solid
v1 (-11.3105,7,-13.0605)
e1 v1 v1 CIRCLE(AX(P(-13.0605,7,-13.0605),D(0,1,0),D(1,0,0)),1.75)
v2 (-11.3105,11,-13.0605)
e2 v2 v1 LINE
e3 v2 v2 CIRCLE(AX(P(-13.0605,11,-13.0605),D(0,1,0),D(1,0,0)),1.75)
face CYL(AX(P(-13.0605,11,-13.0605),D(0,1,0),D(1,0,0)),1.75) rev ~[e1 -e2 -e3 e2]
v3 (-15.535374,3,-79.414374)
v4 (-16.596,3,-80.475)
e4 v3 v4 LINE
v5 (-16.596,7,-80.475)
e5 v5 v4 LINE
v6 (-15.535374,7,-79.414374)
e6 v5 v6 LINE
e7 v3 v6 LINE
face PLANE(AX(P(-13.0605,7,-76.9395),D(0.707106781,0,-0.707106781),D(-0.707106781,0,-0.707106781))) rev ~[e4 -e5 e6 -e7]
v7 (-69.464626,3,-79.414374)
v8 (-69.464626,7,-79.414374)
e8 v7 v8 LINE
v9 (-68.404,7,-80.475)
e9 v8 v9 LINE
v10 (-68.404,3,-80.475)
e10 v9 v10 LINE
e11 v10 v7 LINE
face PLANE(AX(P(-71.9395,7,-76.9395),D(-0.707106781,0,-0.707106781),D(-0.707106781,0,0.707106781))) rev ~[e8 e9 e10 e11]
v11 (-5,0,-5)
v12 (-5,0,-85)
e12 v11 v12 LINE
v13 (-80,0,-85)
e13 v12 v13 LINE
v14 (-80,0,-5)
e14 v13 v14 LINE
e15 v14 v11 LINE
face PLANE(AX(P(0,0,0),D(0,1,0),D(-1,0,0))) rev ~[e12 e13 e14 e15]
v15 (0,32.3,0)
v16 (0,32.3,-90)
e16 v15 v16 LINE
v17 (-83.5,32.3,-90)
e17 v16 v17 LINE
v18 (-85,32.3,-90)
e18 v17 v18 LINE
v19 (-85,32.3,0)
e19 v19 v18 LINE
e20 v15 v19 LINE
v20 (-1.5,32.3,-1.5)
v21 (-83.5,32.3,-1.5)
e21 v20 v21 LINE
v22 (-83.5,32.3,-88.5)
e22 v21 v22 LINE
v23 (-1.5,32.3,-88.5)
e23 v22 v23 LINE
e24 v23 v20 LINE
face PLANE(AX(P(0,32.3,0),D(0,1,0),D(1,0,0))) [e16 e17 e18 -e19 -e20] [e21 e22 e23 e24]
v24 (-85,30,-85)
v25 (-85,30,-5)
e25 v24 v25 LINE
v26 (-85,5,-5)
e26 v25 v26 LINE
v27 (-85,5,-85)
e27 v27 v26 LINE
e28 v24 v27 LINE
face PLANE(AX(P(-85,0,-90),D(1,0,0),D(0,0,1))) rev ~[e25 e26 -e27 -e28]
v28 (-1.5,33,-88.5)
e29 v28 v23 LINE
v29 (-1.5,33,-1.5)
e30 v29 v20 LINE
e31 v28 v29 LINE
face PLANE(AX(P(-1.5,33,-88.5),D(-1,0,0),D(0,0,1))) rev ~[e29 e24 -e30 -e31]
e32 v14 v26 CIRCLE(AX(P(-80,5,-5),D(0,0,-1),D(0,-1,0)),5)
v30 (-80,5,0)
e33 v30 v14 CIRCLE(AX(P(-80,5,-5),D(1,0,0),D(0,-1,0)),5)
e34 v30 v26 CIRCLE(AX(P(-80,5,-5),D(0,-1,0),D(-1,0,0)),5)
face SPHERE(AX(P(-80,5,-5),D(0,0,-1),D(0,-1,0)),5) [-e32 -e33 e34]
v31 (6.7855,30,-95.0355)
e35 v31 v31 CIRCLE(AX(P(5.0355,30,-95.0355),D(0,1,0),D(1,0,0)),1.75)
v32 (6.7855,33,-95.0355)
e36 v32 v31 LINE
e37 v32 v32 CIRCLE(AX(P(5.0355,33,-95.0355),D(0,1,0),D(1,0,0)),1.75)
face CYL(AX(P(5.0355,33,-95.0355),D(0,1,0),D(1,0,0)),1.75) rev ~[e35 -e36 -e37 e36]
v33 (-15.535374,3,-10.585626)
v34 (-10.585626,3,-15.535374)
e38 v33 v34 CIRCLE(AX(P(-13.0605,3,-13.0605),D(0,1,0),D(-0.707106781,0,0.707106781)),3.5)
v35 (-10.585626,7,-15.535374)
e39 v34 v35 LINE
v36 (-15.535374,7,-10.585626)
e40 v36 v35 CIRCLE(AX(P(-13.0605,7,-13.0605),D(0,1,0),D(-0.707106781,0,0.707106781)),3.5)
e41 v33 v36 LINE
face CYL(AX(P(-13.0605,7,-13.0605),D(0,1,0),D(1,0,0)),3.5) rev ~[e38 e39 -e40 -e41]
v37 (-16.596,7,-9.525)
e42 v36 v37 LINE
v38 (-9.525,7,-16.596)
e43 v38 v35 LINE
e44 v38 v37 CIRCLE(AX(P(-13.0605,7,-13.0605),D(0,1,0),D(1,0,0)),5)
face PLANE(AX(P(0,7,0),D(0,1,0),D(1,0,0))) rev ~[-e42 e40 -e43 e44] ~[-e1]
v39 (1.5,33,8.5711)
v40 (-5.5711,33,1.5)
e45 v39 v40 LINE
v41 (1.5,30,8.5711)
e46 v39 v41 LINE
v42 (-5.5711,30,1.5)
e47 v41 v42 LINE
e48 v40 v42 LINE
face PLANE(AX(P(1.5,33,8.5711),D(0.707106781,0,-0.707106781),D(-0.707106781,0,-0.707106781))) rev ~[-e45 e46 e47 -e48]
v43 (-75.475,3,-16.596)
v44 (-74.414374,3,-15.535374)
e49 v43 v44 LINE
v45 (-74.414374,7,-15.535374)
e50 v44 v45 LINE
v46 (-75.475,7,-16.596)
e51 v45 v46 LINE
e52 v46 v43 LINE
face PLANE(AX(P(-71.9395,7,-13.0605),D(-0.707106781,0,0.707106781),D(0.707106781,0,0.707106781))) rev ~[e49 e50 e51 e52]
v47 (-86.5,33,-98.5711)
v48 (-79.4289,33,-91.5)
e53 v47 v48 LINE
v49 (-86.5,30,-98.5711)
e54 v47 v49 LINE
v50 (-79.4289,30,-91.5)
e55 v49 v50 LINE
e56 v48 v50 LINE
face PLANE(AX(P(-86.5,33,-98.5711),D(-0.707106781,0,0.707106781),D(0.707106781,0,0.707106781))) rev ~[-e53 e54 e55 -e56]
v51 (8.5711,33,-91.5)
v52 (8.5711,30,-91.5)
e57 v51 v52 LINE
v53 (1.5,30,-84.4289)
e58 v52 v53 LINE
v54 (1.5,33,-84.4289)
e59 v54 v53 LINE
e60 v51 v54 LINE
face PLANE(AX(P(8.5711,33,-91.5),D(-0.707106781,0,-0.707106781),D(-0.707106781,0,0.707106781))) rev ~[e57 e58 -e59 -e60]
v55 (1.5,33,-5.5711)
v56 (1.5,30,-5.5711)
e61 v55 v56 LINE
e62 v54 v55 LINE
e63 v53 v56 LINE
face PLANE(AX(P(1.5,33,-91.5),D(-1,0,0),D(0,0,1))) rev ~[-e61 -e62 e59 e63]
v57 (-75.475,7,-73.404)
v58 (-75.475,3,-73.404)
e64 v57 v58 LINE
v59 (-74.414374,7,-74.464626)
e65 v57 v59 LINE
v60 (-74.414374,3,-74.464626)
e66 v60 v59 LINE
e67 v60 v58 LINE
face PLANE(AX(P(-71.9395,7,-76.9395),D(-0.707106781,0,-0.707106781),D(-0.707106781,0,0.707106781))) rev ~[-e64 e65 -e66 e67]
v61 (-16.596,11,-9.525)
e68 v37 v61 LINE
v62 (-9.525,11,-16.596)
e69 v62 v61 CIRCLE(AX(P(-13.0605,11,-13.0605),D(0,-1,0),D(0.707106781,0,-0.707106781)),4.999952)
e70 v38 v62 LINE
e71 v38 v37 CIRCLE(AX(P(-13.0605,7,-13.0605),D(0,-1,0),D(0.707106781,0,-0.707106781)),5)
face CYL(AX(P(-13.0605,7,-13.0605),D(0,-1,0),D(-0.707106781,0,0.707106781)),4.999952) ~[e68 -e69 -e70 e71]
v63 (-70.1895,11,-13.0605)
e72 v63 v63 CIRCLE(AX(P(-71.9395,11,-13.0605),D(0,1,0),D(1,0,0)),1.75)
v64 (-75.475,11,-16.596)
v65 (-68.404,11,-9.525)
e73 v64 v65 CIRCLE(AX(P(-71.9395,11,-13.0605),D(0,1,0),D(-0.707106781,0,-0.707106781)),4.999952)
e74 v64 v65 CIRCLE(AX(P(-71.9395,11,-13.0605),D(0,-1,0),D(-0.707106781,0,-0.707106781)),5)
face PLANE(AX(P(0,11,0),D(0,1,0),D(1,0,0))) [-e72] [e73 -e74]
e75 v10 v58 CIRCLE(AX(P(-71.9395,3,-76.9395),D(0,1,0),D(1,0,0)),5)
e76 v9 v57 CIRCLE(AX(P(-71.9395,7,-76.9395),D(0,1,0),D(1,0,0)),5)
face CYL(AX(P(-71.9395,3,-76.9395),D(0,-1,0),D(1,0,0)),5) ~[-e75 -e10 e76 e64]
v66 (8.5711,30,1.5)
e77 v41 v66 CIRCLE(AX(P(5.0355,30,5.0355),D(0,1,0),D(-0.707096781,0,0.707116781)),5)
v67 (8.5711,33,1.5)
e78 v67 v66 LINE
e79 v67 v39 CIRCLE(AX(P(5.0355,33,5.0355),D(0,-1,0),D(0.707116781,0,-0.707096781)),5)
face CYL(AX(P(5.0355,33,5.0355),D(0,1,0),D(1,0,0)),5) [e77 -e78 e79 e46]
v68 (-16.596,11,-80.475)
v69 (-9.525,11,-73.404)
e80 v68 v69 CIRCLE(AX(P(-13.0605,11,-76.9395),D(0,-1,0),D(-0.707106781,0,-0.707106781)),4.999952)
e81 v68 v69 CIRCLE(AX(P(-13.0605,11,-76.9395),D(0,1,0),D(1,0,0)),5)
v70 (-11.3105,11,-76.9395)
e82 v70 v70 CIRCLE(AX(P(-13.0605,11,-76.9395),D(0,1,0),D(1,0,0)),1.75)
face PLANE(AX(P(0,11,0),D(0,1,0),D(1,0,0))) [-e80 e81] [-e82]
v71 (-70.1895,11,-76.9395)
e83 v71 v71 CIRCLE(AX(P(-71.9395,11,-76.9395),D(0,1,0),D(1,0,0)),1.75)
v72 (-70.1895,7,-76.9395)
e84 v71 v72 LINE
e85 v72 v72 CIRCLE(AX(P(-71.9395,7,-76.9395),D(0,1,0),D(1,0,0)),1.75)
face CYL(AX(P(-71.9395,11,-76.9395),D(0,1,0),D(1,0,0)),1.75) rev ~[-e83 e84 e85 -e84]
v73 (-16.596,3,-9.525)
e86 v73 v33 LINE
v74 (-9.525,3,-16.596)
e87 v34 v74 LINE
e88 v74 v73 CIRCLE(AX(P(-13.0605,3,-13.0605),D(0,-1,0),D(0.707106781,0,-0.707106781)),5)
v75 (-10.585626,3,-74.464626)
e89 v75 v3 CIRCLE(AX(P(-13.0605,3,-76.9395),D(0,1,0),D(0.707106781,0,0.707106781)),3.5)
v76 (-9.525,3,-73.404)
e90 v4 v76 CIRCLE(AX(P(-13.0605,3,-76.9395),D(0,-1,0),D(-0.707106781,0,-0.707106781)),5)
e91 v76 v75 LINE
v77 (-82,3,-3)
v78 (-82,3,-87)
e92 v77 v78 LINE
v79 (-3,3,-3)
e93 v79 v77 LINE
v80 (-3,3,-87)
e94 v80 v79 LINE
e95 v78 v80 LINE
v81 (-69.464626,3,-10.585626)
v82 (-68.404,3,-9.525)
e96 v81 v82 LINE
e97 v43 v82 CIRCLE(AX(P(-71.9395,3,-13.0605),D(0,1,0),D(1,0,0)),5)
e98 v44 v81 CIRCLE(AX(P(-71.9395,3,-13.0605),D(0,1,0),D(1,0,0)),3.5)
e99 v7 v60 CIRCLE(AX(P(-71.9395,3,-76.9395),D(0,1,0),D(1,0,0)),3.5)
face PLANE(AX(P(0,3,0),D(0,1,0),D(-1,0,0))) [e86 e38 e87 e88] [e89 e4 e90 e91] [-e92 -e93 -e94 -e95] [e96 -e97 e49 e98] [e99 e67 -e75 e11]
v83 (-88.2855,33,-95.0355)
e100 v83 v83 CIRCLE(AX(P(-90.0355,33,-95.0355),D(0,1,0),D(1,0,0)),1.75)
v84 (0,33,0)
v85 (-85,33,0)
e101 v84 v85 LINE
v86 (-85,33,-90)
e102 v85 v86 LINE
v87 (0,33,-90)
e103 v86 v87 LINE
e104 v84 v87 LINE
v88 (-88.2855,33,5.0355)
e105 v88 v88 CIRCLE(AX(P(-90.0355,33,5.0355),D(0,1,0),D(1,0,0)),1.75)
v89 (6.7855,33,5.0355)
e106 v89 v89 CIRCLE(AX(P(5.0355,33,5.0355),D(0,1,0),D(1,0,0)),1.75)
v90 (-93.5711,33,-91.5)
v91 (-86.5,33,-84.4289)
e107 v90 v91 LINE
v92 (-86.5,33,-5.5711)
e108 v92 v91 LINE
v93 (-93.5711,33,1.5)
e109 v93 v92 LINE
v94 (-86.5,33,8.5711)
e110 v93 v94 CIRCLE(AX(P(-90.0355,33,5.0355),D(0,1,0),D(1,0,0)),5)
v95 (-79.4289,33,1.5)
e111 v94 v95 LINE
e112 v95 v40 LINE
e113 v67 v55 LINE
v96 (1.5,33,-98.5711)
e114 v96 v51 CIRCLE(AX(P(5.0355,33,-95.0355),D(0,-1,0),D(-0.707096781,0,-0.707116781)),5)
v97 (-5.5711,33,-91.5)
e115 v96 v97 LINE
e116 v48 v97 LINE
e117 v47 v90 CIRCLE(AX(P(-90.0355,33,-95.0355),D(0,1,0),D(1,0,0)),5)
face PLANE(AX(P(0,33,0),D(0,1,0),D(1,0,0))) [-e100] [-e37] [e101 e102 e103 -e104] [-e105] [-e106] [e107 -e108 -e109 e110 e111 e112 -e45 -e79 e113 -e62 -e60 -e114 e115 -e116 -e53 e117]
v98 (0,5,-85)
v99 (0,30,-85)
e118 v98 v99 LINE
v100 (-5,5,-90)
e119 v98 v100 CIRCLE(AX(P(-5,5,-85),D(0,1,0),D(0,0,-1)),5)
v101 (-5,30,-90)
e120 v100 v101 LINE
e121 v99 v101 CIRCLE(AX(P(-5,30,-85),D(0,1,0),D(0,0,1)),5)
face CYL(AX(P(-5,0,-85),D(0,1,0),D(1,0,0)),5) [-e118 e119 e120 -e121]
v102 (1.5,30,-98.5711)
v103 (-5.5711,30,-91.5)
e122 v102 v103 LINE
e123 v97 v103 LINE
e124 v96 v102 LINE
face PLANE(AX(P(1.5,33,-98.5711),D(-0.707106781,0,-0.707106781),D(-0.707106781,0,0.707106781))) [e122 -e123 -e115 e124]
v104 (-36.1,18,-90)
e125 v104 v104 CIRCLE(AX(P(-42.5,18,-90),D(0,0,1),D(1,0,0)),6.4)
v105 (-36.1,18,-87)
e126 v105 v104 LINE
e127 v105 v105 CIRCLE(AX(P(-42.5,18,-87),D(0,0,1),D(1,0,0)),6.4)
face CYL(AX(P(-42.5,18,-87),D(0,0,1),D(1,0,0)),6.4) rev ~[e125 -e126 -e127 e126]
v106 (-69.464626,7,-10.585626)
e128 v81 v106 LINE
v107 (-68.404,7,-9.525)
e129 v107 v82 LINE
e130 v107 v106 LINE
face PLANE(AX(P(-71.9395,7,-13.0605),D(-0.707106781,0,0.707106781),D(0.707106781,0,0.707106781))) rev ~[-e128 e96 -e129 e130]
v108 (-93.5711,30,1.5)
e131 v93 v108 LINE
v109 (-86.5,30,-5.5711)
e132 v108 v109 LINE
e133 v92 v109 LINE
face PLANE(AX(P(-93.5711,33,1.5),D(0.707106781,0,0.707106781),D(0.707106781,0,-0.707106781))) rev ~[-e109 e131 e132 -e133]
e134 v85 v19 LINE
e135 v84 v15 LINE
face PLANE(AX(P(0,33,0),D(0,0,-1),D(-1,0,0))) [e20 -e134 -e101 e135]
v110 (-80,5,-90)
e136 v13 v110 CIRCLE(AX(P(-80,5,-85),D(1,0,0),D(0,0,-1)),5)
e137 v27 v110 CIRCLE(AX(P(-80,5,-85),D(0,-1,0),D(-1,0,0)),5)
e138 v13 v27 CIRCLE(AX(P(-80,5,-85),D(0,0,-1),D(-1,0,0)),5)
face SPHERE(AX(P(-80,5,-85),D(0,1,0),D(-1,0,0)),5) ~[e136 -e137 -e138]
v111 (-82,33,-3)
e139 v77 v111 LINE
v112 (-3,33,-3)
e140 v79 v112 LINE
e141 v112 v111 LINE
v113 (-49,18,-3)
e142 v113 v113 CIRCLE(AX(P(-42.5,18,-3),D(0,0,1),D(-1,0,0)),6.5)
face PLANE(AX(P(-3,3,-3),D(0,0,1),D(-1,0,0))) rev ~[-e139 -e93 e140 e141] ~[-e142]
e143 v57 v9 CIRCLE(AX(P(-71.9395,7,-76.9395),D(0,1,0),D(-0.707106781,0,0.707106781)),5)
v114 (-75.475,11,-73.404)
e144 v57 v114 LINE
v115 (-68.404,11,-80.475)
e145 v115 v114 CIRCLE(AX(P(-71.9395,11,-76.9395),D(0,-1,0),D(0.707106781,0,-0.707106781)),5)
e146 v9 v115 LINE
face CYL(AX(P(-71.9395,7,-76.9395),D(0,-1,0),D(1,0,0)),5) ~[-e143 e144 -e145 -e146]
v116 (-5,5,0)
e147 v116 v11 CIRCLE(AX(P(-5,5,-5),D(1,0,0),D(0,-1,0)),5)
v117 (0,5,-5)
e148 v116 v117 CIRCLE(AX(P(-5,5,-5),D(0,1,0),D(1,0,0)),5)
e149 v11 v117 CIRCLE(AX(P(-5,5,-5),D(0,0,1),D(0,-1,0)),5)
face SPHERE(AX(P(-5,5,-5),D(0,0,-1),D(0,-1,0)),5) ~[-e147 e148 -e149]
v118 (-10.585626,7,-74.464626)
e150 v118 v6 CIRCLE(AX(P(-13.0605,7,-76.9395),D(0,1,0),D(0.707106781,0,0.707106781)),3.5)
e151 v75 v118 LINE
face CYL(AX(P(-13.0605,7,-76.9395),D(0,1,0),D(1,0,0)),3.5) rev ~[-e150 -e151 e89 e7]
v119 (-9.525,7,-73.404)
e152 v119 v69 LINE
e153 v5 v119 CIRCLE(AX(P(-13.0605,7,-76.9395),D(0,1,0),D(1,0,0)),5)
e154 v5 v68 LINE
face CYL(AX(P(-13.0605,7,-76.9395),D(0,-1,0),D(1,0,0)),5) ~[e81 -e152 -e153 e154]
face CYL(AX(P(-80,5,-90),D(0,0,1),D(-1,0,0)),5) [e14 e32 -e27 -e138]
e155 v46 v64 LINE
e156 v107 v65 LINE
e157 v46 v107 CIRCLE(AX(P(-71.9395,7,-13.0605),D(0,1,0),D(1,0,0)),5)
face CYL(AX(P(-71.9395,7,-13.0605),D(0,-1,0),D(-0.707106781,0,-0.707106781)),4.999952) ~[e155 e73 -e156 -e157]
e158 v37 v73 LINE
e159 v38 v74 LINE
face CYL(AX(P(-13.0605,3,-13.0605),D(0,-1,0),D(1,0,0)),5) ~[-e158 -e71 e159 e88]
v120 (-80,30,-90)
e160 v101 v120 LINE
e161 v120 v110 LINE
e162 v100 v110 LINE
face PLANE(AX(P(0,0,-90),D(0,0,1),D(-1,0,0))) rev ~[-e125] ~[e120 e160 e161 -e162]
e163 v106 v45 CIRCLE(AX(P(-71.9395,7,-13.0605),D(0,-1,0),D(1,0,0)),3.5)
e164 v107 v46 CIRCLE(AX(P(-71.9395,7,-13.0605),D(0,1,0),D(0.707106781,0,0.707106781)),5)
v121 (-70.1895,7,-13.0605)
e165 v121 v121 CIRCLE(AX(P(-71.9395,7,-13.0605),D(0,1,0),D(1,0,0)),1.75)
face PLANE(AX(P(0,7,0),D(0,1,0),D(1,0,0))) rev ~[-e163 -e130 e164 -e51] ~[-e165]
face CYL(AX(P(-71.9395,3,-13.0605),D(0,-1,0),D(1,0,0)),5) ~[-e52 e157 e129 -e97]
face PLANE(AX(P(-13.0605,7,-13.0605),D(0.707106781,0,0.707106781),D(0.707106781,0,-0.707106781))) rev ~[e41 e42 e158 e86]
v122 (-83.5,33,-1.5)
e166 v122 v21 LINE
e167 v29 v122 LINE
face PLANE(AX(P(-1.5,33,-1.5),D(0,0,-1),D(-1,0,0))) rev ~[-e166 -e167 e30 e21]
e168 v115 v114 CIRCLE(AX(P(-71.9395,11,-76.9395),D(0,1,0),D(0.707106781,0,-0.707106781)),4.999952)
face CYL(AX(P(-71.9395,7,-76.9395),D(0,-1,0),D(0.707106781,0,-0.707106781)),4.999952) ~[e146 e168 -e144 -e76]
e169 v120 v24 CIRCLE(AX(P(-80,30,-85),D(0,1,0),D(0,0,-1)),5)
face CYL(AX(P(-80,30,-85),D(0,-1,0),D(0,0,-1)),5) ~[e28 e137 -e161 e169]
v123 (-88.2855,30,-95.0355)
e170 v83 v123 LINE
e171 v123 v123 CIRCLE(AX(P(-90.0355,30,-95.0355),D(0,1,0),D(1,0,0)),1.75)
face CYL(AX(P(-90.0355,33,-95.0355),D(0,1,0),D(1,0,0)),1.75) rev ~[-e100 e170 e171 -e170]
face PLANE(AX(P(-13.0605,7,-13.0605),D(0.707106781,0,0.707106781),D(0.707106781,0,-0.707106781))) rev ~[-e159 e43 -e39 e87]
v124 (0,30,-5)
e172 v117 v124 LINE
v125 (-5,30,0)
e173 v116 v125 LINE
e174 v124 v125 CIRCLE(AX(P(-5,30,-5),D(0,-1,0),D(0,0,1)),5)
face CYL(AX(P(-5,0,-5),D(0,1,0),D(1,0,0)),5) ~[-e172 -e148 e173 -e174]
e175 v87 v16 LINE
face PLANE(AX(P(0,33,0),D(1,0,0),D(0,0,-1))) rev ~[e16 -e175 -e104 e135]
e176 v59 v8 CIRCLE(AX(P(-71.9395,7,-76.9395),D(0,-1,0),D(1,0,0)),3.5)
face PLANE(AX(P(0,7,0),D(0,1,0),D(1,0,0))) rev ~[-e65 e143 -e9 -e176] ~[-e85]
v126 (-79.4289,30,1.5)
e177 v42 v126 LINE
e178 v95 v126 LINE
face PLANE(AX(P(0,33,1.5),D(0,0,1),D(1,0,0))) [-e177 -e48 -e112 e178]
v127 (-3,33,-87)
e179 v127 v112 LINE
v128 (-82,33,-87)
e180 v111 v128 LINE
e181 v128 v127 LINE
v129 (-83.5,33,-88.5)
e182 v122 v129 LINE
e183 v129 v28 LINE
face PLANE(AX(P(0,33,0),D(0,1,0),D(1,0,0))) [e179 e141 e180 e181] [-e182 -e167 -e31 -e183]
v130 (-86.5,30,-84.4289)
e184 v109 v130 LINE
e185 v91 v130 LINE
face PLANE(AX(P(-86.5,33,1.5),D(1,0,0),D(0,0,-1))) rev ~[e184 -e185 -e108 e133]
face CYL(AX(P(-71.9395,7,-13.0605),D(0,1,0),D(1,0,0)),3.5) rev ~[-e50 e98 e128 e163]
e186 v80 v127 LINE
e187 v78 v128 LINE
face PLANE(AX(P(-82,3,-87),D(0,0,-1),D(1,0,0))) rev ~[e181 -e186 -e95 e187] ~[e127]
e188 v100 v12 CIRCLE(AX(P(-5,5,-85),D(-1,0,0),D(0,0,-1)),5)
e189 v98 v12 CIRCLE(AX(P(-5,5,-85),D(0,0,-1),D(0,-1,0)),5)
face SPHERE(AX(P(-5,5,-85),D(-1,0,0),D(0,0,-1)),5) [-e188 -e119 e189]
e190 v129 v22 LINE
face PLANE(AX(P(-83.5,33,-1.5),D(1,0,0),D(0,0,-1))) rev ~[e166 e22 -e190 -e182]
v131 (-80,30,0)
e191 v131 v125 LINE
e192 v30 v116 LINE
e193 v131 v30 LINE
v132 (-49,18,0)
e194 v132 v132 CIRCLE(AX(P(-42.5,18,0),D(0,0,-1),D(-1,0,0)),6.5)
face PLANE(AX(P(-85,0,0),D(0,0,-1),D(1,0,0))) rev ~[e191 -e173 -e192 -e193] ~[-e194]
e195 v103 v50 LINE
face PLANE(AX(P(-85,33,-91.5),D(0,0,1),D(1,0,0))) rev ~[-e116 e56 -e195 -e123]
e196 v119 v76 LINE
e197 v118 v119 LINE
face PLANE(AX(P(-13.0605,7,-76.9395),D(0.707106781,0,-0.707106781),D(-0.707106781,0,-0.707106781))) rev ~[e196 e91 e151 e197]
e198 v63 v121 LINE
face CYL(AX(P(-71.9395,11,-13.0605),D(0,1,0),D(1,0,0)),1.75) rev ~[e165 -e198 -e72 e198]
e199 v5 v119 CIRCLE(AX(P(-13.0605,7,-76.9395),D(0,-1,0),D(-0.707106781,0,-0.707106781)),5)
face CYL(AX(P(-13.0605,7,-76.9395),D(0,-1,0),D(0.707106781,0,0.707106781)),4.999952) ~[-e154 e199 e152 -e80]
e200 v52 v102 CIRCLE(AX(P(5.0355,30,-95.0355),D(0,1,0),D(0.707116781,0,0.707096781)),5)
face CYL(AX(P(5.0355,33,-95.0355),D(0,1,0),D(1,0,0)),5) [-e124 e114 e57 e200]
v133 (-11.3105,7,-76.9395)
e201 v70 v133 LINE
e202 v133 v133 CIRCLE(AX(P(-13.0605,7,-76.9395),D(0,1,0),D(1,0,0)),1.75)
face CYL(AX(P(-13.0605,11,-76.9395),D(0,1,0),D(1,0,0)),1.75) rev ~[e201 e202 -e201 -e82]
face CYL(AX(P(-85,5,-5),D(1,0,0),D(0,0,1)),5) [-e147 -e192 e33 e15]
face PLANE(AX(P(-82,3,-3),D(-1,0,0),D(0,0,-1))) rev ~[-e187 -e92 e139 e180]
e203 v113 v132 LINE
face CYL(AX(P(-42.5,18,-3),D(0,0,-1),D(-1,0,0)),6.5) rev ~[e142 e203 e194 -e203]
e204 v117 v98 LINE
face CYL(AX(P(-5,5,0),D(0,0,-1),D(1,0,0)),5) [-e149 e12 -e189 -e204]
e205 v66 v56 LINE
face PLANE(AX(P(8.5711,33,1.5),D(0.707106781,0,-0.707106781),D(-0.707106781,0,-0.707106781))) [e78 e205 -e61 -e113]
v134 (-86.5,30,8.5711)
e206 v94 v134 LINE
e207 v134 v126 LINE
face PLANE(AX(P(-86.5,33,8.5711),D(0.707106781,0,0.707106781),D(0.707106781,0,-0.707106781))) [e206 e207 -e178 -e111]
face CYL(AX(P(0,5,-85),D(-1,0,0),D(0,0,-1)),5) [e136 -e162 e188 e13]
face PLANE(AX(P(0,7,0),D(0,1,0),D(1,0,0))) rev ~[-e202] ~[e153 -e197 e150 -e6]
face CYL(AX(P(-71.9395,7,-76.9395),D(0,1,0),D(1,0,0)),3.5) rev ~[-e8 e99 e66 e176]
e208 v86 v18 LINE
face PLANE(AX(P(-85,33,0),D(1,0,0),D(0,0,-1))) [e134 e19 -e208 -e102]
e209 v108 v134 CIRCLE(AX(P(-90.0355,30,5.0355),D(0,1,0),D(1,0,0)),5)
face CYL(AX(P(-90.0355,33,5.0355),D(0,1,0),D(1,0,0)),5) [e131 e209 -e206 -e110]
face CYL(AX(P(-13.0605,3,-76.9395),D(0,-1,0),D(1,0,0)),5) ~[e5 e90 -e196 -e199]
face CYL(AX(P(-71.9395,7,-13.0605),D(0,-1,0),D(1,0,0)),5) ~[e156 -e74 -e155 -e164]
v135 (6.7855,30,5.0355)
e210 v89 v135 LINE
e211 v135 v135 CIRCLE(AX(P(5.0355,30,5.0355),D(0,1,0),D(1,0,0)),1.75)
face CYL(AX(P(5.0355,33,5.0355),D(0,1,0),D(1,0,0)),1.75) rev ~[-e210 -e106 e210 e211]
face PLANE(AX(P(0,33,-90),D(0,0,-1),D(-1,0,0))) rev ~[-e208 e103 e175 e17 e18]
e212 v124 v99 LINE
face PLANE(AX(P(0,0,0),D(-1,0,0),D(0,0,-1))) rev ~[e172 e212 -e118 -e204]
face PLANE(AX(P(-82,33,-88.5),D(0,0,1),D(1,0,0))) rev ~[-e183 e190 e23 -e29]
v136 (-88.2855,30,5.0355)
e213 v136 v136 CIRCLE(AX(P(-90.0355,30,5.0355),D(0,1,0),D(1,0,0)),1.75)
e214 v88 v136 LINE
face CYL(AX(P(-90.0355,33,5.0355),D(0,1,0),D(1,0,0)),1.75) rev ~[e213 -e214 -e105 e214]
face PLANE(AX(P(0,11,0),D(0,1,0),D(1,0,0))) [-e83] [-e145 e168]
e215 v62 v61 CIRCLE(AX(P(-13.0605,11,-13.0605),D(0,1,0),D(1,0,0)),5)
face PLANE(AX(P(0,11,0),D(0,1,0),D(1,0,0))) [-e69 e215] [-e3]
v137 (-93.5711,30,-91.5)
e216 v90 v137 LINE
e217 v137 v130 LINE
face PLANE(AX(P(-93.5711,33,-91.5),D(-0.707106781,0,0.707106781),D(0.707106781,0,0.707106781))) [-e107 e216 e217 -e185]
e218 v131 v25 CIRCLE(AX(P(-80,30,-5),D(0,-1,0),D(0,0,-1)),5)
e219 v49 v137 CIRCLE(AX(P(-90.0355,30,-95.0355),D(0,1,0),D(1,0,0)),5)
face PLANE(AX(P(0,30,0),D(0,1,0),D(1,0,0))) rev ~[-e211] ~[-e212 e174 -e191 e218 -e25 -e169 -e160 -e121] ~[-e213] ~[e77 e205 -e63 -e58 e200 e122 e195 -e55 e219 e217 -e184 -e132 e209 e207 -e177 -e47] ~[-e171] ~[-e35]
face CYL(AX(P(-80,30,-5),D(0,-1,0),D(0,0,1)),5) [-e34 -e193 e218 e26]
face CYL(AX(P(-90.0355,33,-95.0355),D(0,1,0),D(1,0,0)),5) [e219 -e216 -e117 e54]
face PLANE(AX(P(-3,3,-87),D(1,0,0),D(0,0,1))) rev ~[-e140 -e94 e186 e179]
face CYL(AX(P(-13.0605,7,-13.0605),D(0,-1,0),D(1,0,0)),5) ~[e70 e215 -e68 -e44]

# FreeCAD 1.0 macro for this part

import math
import FreeCAD as App
import Part
import Sketcher


def edges_at(feature, points):
    """Names of the edges that pass closest to the given points."""
    edges = feature.Shape.Edges
    near = lambda p: min(range(len(edges)), key=lambda i: edges[i].distToShape(Part.Vertex(*p))[0])
    return sorted({f"Edge{near(p) + 1}" for p in points})


def add_polygon(sketch, points):
    """Adds a closed chain of lines whose ends are joined by coincident constraints."""
    first, n = sketch.GeometryCount, len(points)
    for a, b in zip(points, points[1:] + points[:1]):
        sketch.addGeometry(Part.LineSegment(App.Vector(*a, 0), App.Vector(*b, 0)), False)
    for i in range(n):
        sketch.addConstraint(Sketcher.Constraint("Coincident", first + i, 2, first + (i + 1) % n, 1))

doc = App.newDocument("Part")
body = doc.addObject("PartDesign::Body", "Body")

sketch1 = doc.addObject("Sketcher::SketchObject", "Sketch")
body.addObject(sketch1)
sketch1.AttachmentSupport = (doc.XZ_Plane, [""])
sketch1.MapMode = "FlatFace"
add_polygon(sketch1, [(-85, 0), (0, 0), (0, -90), (-85, -90)])
sketch1.addConstraint(Sketcher.Constraint("Horizontal", 0))
sketch1.addConstraint(Sketcher.Constraint("Vertical", 1))
sketch1.addConstraint(Sketcher.Constraint("Horizontal", 2))
sketch1.addConstraint(Sketcher.Constraint("Vertical", 3))
sketch1.addConstraint(Sketcher.Constraint("Coincident", 0, 2, -1, 1))
sketch1.addConstraint(Sketcher.Constraint("DistanceX", 0, 1, 0, 2, 85.0))
sketch1.addConstraint(Sketcher.Constraint("DistanceY", 1, 2, 1, 1, 90.0))
pad1 = doc.addObject("PartDesign::Pad", "Pad")
body.addObject(pad1)
pad1.Profile = sketch1
pad1.Length = 3
pad1.Reversed = True

sketch2 = doc.addObject("Sketcher::SketchObject", "Sketch001")
body.addObject(sketch2)
sketch2.AttachmentSupport = (doc.XZ_Plane, [""])
sketch2.MapMode = "FlatFace"
sketch2.AttachmentOffset = App.Placement(App.Vector(0, 0, -3), App.Rotation())
add_polygon(sketch2, [(-85, 0), (0, 0), (0, -90), (-85, -90)])
add_polygon(sketch2, [(-3, -87), (-3, -3), (-82, -3), (-82, -87)])
sketch2.addConstraint(Sketcher.Constraint("Horizontal", 0))
sketch2.addConstraint(Sketcher.Constraint("Vertical", 1))
sketch2.addConstraint(Sketcher.Constraint("Horizontal", 2))
sketch2.addConstraint(Sketcher.Constraint("Vertical", 3))
sketch2.addConstraint(Sketcher.Constraint("Vertical", 4))
sketch2.addConstraint(Sketcher.Constraint("Horizontal", 5))
sketch2.addConstraint(Sketcher.Constraint("Vertical", 6))
sketch2.addConstraint(Sketcher.Constraint("Horizontal", 7))
sketch2.addConstraint(Sketcher.Constraint("Coincident", 0, 2, -1, 1))
sketch2.addConstraint(Sketcher.Constraint("DistanceX", 0, 1, 0, 2, 85.0))
sketch2.addConstraint(Sketcher.Constraint("DistanceX", 5, 2, 5, 1, 79.0))
sketch2.addConstraint(Sketcher.Constraint("DistanceY", 1, 2, 1, 1, 90.0))
sketch2.addConstraint(Sketcher.Constraint("DistanceY", 4, 1, 4, 2, 84.0))
sketch2.addConstraint(Sketcher.Constraint("DistanceX", 4, 2, -1, 1, 3.0))
sketch2.addConstraint(Sketcher.Constraint("DistanceY", 4, 2, -1, 1, 3.0))
pad2 = doc.addObject("PartDesign::Pad", "Pad001")
body.addObject(pad2)
pad2.Profile = sketch2
pad2.Length = 30
pad2.Reversed = True

sketch3 = doc.addObject("Sketcher::SketchObject", "Sketch002")
body.addObject(sketch3)
sketch3.AttachmentSupport = (doc.XZ_Plane, [""])
sketch3.MapMode = "FlatFace"
sketch3.AttachmentOffset = App.Placement(App.Vector(0, 0, -33), App.Rotation())
add_polygon(sketch3, [(2, -92), (-86, -92), (-86, 2), (2, 2)])
add_polygon(sketch3, [(0, -90), (0, 0), (-85, 0), (-85, -90)])
sketch3.addConstraint(Sketcher.Constraint("Horizontal", 0))
sketch3.addConstraint(Sketcher.Constraint("Vertical", 1))
sketch3.addConstraint(Sketcher.Constraint("Horizontal", 2))
sketch3.addConstraint(Sketcher.Constraint("Vertical", 3))
sketch3.addConstraint(Sketcher.Constraint("Vertical", 4))
sketch3.addConstraint(Sketcher.Constraint("Horizontal", 5))
sketch3.addConstraint(Sketcher.Constraint("Vertical", 6))
sketch3.addConstraint(Sketcher.Constraint("Horizontal", 7))
sketch3.addConstraint(Sketcher.Constraint("Coincident", 4, 2, -1, 1))
sketch3.addConstraint(Sketcher.Constraint("DistanceY", -1, 1, 1, 2, 1.5))
sketch3.addConstraint(Sketcher.Constraint("DistanceX", -1, 1, 2, 2, 1.5))
sketch3.addConstraint(Sketcher.Constraint("DistanceX", 1, 2, 5, 2, 1.5))
sketch3.addConstraint(Sketcher.Constraint("DistanceY", 0, 2, 6, 2, 1.5))
sketch3.addConstraint(Sketcher.Constraint("DistanceX", 0, 2, 0, 1, 88.0))
sketch3.addConstraint(Sketcher.Constraint("DistanceY", 1, 1, 1, 2, 93.0))
pad3 = doc.addObject("PartDesign::Pad", "Pad002")
body.addObject(pad3)
pad3.Profile = sketch3
pad3.Length = 3

sketch4 = doc.addObject("Sketcher::SketchObject", "Sketch003")
body.addObject(sketch4)
sketch4.AttachmentSupport = (doc.XZ_Plane, [""])
sketch4.MapMode = "FlatFace"
sketch4.AttachmentOffset = App.Placement(App.Vector(0, 0, -33), App.Rotation())
add_polygon(sketch4, [(0, -90), (-83.5, -90), (-85, -90), (-85, 0), (0, 0)])
add_polygon(sketch4, [(-1.5, -88.5), (-1.5, -1.5), (-83.5, -1.5), (-83.5, -88.5)])
sketch4.addConstraint(Sketcher.Constraint("Horizontal", 0))
sketch4.addConstraint(Sketcher.Constraint("Horizontal", 1))
sketch4.addConstraint(Sketcher.Constraint("Vertical", 2))
sketch4.addConstraint(Sketcher.Constraint("Horizontal", 3))
sketch4.addConstraint(Sketcher.Constraint("Vertical", 4))
sketch4.addConstraint(Sketcher.Constraint("Vertical", 5))
sketch4.addConstraint(Sketcher.Constraint("Horizontal", 6))
sketch4.addConstraint(Sketcher.Constraint("Vertical", 7))
sketch4.addConstraint(Sketcher.Constraint("Horizontal", 8))
sketch4.addConstraint(Sketcher.Constraint("Coincident", 3, 2, -1, 1))
sketch4.addConstraint(Sketcher.Constraint("Vertical", 0, 2, 6, 2))
sketch4.addConstraint(Sketcher.Constraint("DistanceX", 1, 2, 1, 1, 1.5))
sketch4.addConstraint(Sketcher.Constraint("DistanceX", 5, 2, -1, 1, 1.5))
sketch4.addConstraint(Sketcher.Constraint("DistanceY", 5, 2, -1, 1, 1.5))
sketch4.addConstraint(Sketcher.Constraint("DistanceY", 0, 2, 7, 2, 1.5))
sketch4.addConstraint(Sketcher.Constraint("DistanceX", 3, 1, 3, 2, 85.0))
sketch4.addConstraint(Sketcher.Constraint("DistanceY", 2, 1, 2, 2, 90.0))
pocket1 = doc.addObject("PartDesign::Pocket", "Pocket")
body.addObject(pocket1)
pocket1.Profile = sketch4
pocket1.Length = 0.7
pocket1.Reversed = True

sketch5 = doc.addObject("Sketcher::SketchObject", "Sketch004")
body.addObject(sketch5)
sketch5.AttachmentSupport = (doc.XY_Plane, [""])
sketch5.MapMode = "FlatFace"
sketch5.AttachmentOffset = App.Placement(App.Vector(0, 0, -87), App.Rotation())
sketch5.addGeometry(Part.Circle(App.Vector(-42, 18, 0), App.Vector(0, 0, 1), 6), False)
sketch5.addConstraint(Sketcher.Constraint("Diameter", 0, 12.8))
sketch5.addConstraint(Sketcher.Constraint("DistanceY", -1, 1, 0, 3, 18.0))
sketch5.addConstraint(Sketcher.Constraint("DistanceX", 0, 3, -1, 1, 42.5))
pocket2 = doc.addObject("PartDesign::Pocket", "Pocket001")
body.addObject(pocket2)
pocket2.Profile = sketch5
pocket2.Length = 3

sketch6 = doc.addObject("Sketcher::SketchObject", "Sketch005")
body.addObject(sketch6)
sketch6.AttachmentSupport = (doc.XY_Plane, [""])
sketch6.MapMode = "FlatFace"
sketch6.AttachmentOffset = App.Placement(App.Vector(0, 0, -3), App.Rotation())
sketch6.addGeometry(Part.Circle(App.Vector(-42, 18, 0), App.Vector(0, 0, 1), 6), False)
sketch6.addConstraint(Sketcher.Constraint("Diameter", 0, 13.0))
sketch6.addConstraint(Sketcher.Constraint("DistanceY", -1, 1, 0, 3, 18.0))
sketch6.addConstraint(Sketcher.Constraint("DistanceX", 0, 3, -1, 1, 42.5))
pocket3 = doc.addObject("PartDesign::Pocket", "Pocket002")
body.addObject(pocket3)
pocket3.Profile = sketch6
pocket3.Length = 3
pocket3.Reversed = True

sketch7 = doc.addObject("Sketcher::SketchObject", "Sketch006")
body.addObject(sketch7)
sketch7.AttachmentSupport = (doc.XZ_Plane, [""])
sketch7.MapMode = "FlatFace"
sketch7.AttachmentOffset = App.Placement(App.Vector(0, 0, -3), App.Rotation())
sketch7.addGeometry(Part.Circle(App.Vector(-13, -13, 0), App.Vector(0, 0, 1), 5), False)
sketch7.addGeometry(Part.Circle(App.Vector(-13, -77, 0), App.Vector(0, 0, 1), 5), False)
sketch7.addGeometry(Part.Circle(App.Vector(-72, -77, 0), App.Vector(0, 0, 1), 5), False)
sketch7.addGeometry(Part.Circle(App.Vector(-72, -13, 0), App.Vector(0, 0, 1), 5), False)
sketch7.addConstraint(Sketcher.Constraint("Equal", 0, 1))
sketch7.addConstraint(Sketcher.Constraint("Equal", 1, 2))
sketch7.addConstraint(Sketcher.Constraint("Equal", 2, 3))
sketch7.addConstraint(Sketcher.Constraint("Horizontal", 1, 3, 2, 3))
sketch7.addConstraint(Sketcher.Constraint("Horizontal", 0, 3, 3, 3))
sketch7.addConstraint(Sketcher.Constraint("Vertical", 0, 3, 1, 3))
sketch7.addConstraint(Sketcher.Constraint("Vertical", 2, 3, 3, 3))
sketch7.addConstraint(Sketcher.Constraint("Diameter", 0, 10.0))
sketch7.addConstraint(Sketcher.Constraint("DistanceY", 1, 3, 0, 3, 63.879))
sketch7.addConstraint(Sketcher.Constraint("DistanceX", 2, 3, 1, 3, 58.879))
sketch7.addConstraint(Sketcher.Constraint("DistanceX", 0, 3, -1, 1, 13.0605))
sketch7.addConstraint(Sketcher.Constraint("DistanceY", 0, 3, -1, 1, 13.0605))
pad4 = doc.addObject("PartDesign::Pad", "Pad003")
body.addObject(pad4)
pad4.Profile = sketch7
pad4.Length = 4
pad4.Reversed = True

sketch8 = doc.addObject("Sketcher::SketchObject", "Sketch007")
body.addObject(sketch8)
sketch8.AttachmentSupport = (doc.XZ_Plane, [""])
sketch8.MapMode = "FlatFace"
sketch8.AttachmentOffset = App.Placement(App.Vector(0, 0, -7), App.Rotation())
sketch8.addGeometry(Part.ArcOfCircle(Part.Circle(App.Vector(-72, -13, 0), App.Vector(0, 0, 1), 5), math.radians(-135), math.radians(45)), False)
sketch8.addGeometry(Part.LineSegment(App.Vector(-68, -10, 0), App.Vector(-75, -17, 0)), False)
sketch8.addGeometry(Part.ArcOfCircle(Part.Circle(App.Vector(-72, -77, 0), App.Vector(0, 0, 1), 5), math.radians(-45), math.radians(135)), False)
sketch8.addGeometry(Part.LineSegment(App.Vector(-75, -73, 0), App.Vector(-68, -80, 0)), False)
sketch8.addGeometry(Part.LineSegment(App.Vector(-17, -10, 0), App.Vector(-10, -17, 0)), False)
sketch8.addGeometry(Part.ArcOfCircle(Part.Circle(App.Vector(-13, -13, 0), App.Vector(0, 0, 1), 5), math.radians(135), math.radians(315)), False)
sketch8.addGeometry(Part.LineSegment(App.Vector(-10, -73, 0), App.Vector(-17, -80, 0)), False)
sketch8.addGeometry(Part.ArcOfCircle(Part.Circle(App.Vector(-13, -77, 0), App.Vector(0, 0, 1), 5), math.radians(45), math.radians(225)), False)
sketch8.addConstraint(Sketcher.Constraint("Coincident", 0, 1, 1, 2))
sketch8.addConstraint(Sketcher.Constraint("Coincident", 1, 1, 0, 2))
sketch8.addConstraint(Sketcher.Constraint("Coincident", 2, 1, 3, 2))
sketch8.addConstraint(Sketcher.Constraint("Coincident", 3, 1, 2, 2))
sketch8.addConstraint(Sketcher.Constraint("Coincident", 4, 1, 5, 1))
sketch8.addConstraint(Sketcher.Constraint("Coincident", 5, 2, 4, 2))
sketch8.addConstraint(Sketcher.Constraint("Coincident", 6, 1, 7, 1))
sketch8.addConstraint(Sketcher.Constraint("Coincident", 7, 2, 6, 2))
sketch8.addConstraint(Sketcher.Constraint("Equal", 0, 2))
sketch8.addConstraint(Sketcher.Constraint("Equal", 2, 5))
sketch8.addConstraint(Sketcher.Constraint("Equal", 5, 7))
sketch8.addConstraint(Sketcher.Constraint("Perpendicular", 1, 3))
sketch8.addConstraint(Sketcher.Constraint("Parallel", 3, 4))
sketch8.addConstraint(Sketcher.Constraint("Perpendicular", 4, 6))
sketch8.addConstraint(Sketcher.Constraint("Horizontal", 0, 3, 5, 3))
sketch8.addConstraint(Sketcher.Constraint("Horizontal", 2, 3, 7, 3))
sketch8.addConstraint(Sketcher.Constraint("Horizontal", 1, 1, 4, 1))
sketch8.addConstraint(Sketcher.Constraint("Horizontal", 0, 1, 5, 2))
sketch8.addConstraint(Sketcher.Constraint("Horizontal", 3, 1, 6, 1))
sketch8.addConstraint(Sketcher.Constraint("Vertical", 0, 3, 2, 3))
sketch8.addConstraint(Sketcher.Constraint("Vertical", 5, 3, 7, 3))
sketch8.addConstraint(Sketcher.Constraint("Vertical", 1, 1, 2, 1))
sketch8.addConstraint(Sketcher.Constraint("Radius", 0, 5.0))
sketch8.addConstraint(Sketcher.Constraint("DistanceY", 2, 1, 1, 1, 70.95))
sketch8.addConstraint(Sketcher.Constraint("DistanceX", 0, 1, -1, 1, 75.475))
sketch8.addConstraint(Sketcher.Constraint("DistanceY", 0, 1, -1, 1, 16.596))
sketch8.addConstraint(Sketcher.Constraint("DistanceX", 4, 1, -1, 1, 16.596))
sketch8.addConstraint(Sketcher.Constraint("DistanceY", 2, 3, 0, 3, 63.879))
pocket4 = doc.addObject("PartDesign::Pocket", "Pocket003")
body.addObject(pocket4)
pocket4.Profile = sketch8
pocket4.Length = 4
pocket4.Reversed = True

sketch9 = doc.addObject("Sketcher::SketchObject", "Sketch008")
body.addObject(sketch9)
sketch9.AttachmentSupport = (doc.XZ_Plane, [""])
sketch9.MapMode = "FlatFace"
sketch9.AttachmentOffset = App.Placement(App.Vector(0, 0, -7), App.Rotation())
sketch9.addGeometry(Part.Circle(App.Vector(-71.9, -13.1, 0), App.Vector(0, 0, 1), 3.5), False)
sketch9.addGeometry(Part.Circle(App.Vector(-71.9, -76.9, 0), App.Vector(0, 0, 1), 3.5), False)
sketch9.addGeometry(Part.Circle(App.Vector(-13.1, -76.9, 0), App.Vector(0, 0, 1), 3.5), False)
sketch9.addGeometry(Part.Circle(App.Vector(-13.1, -13.1, 0), App.Vector(0, 0, 1), 3.5), False)
sketch9.addConstraint(Sketcher.Constraint("Equal", 0, 1))
sketch9.addConstraint(Sketcher.Constraint("Equal", 1, 2))
sketch9.addConstraint(Sketcher.Constraint("Equal", 2, 3))
sketch9.addConstraint(Sketcher.Constraint("Horizontal", 1, 3, 2, 3))
sketch9.addConstraint(Sketcher.Constraint("Horizontal", 0, 3, 3, 3))
sketch9.addConstraint(Sketcher.Constraint("Vertical", 0, 3, 1, 3))
sketch9.addConstraint(Sketcher.Constraint("Vertical", 2, 3, 3, 3))
sketch9.addConstraint(Sketcher.Constraint("Diameter", 0, 7.0))
sketch9.addConstraint(Sketcher.Constraint("DistanceY", 1, 3, 0, 3, 63.879))
sketch9.addConstraint(Sketcher.Constraint("DistanceX", 1, 3, 2, 3, 58.879))
sketch9.addConstraint(Sketcher.Constraint("DistanceX", 0, 3, -1, 1, 71.9395))
sketch9.addConstraint(Sketcher.Constraint("DistanceY", 0, 3, -1, 1, 13.0605))
pocket5 = doc.addObject("PartDesign::Pocket", "Pocket004")
body.addObject(pocket5)
pocket5.Profile = sketch9
pocket5.Length = 4
pocket5.Reversed = True

sketch10 = doc.addObject("Sketcher::SketchObject", "Sketch009")
body.addObject(sketch10)
sketch10.AttachmentSupport = (doc.XZ_Plane, [""])
sketch10.MapMode = "FlatFace"
sketch10.AttachmentOffset = App.Placement(App.Vector(0, 0, -7), App.Rotation())
sketch10.addGeometry(Part.Circle(App.Vector(-71.9, -13.1, 0), App.Vector(0, 0, 1), 5), False)
sketch10.addGeometry(Part.Circle(App.Vector(-13.1, -13.1, 0), App.Vector(0, 0, 1), 5), False)
sketch10.addGeometry(Part.Circle(App.Vector(-13.1, -76.9, 0), App.Vector(0, 0, 1), 5), False)
sketch10.addGeometry(Part.Circle(App.Vector(-71.9, -76.9, 0), App.Vector(0, 0, 1), 5), False)
sketch10.addConstraint(Sketcher.Constraint("Equal", 0, 1))
sketch10.addConstraint(Sketcher.Constraint("Equal", 1, 2))
sketch10.addConstraint(Sketcher.Constraint("Equal", 2, 3))
sketch10.addConstraint(Sketcher.Constraint("Horizontal", 0, 3, 1, 3))
sketch10.addConstraint(Sketcher.Constraint("Horizontal", 2, 3, 3, 3))
sketch10.addConstraint(Sketcher.Constraint("Vertical", 1, 3, 2, 3))
sketch10.addConstraint(Sketcher.Constraint("Vertical", 0, 3, 3, 3))
sketch10.addConstraint(Sketcher.Constraint("Diameter", 0, 10.0))
sketch10.addConstraint(Sketcher.Constraint("DistanceX", 0, 3, 1, 3, 58.879))
sketch10.addConstraint(Sketcher.Constraint("DistanceY", 2, 3, 1, 3, 63.879))
sketch10.addConstraint(Sketcher.Constraint("DistanceX", 0, 3, -1, 1, 71.9395))
sketch10.addConstraint(Sketcher.Constraint("DistanceY", 0, 3, -1, 1, 13.0605))
pad5 = doc.addObject("PartDesign::Pad", "Pad004")
body.addObject(pad5)
pad5.Profile = sketch10
pad5.Length = 4
pad5.Reversed = True

sketch11 = doc.addObject("Sketcher::SketchObject", "Sketch010")
body.addObject(sketch11)
sketch11.AttachmentSupport = (doc.XZ_Plane, [""])
sketch11.MapMode = "FlatFace"
sketch11.AttachmentOffset = App.Placement(App.Vector(0, 0, -11), App.Rotation())
sketch11.addGeometry(Part.Circle(App.Vector(-13.1, -76.9, 0), App.Vector(0, 0, 1), 1.8), False)
sketch11.addGeometry(Part.Circle(App.Vector(-13.1, -13.1, 0), App.Vector(0, 0, 1), 1.8), False)
sketch11.addGeometry(Part.Circle(App.Vector(-71.9, -13.1, 0), App.Vector(0, 0, 1), 1.8), False)
sketch11.addGeometry(Part.Circle(App.Vector(-71.9, -76.9, 0), App.Vector(0, 0, 1), 1.8), False)
sketch11.addConstraint(Sketcher.Constraint("Equal", 0, 1))
sketch11.addConstraint(Sketcher.Constraint("Equal", 1, 2))
sketch11.addConstraint(Sketcher.Constraint("Equal", 2, 3))
sketch11.addConstraint(Sketcher.Constraint("Horizontal", 1, 3, 2, 3))
sketch11.addConstraint(Sketcher.Constraint("Horizontal", 0, 3, 3, 3))
sketch11.addConstraint(Sketcher.Constraint("Vertical", 0, 3, 1, 3))
sketch11.addConstraint(Sketcher.Constraint("Vertical", 2, 3, 3, 3))
sketch11.addConstraint(Sketcher.Constraint("Diameter", 0, 3.5))
sketch11.addConstraint(Sketcher.Constraint("DistanceY", 0, 3, 1, 3, 63.879))
sketch11.addConstraint(Sketcher.Constraint("DistanceX", 2, 3, 1, 3, 58.879))
sketch11.addConstraint(Sketcher.Constraint("DistanceX", 0, 3, -1, 1, 13.0605))
sketch11.addConstraint(Sketcher.Constraint("DistanceY", 0, 3, -1, 1, 76.9395))
pocket6 = doc.addObject("PartDesign::Pocket", "Pocket005")
body.addObject(pocket6)
pocket6.Profile = sketch11
pocket6.Length = 4
pocket6.Reversed = True

sketch12 = doc.addObject("Sketcher::SketchObject", "Sketch011")
body.addObject(sketch12)
sketch12.AttachmentSupport = (doc.XZ_Plane, [""])
sketch12.MapMode = "FlatFace"
sketch12.AttachmentOffset = App.Placement(App.Vector(0, 0, -33), App.Rotation())
sketch12.addGeometry(Part.LineSegment(App.Vector(2, -84, 0), App.Vector(9, -92, 0)), False)
sketch12.addGeometry(Part.ArcOfCircle(Part.Circle(App.Vector(5, -95, 0), App.Vector(0, 0, 1), 5), math.radians(-135), math.radians(45)), False)
sketch12.addGeometry(Part.LineSegment(App.Vector(2, -99, 0), App.Vector(-6, -92, 0)), False)
sketch12.addGeometry(Part.LineSegment(App.Vector(-6, -92, 0), App.Vector(2, -92, 0)), False)
sketch12.addGeometry(Part.LineSegment(App.Vector(2, -92, 0), App.Vector(2, -84, 0)), False)
sketch12.addGeometry(Part.LineSegment(App.Vector(9, 2, 0), App.Vector(2, -6, 0)), False)
sketch12.addGeometry(Part.LineSegment(App.Vector(2, -6, 0), App.Vector(2, 2, 0)), False)
sketch12.addGeometry(Part.LineSegment(App.Vector(2, 2, 0), App.Vector(-6, 2, 0)), False)
sketch12.addGeometry(Part.LineSegment(App.Vector(-6, 2, 0), App.Vector(2, 9, 0)), False)
sketch12.addGeometry(Part.ArcOfCircle(Part.Circle(App.Vector(5, 5, 0), App.Vector(0, 0, 1), 5), math.radians(-45), math.radians(135)), False)
sketch12.addGeometry(Part.LineSegment(App.Vector(-86, -92, 0), App.Vector(-79, -92, 0)), False)
sketch12.addGeometry(Part.LineSegment(App.Vector(-79, -92, 0), App.Vector(-86, -99, 0)), False)
sketch12.addGeometry(Part.ArcOfCircle(Part.Circle(App.Vector(-90, -95, 0), App.Vector(0, 0, 1), 5), math.radians(135), math.radians(315)), False)
sketch12.addGeometry(Part.LineSegment(App.Vector(-94, -92, 0), App.Vector(-86, -84, 0)), False)
sketch12.addGeometry(Part.LineSegment(App.Vector(-86, -84, 0), App.Vector(-86, -92, 0)), False)
sketch12.addGeometry(Part.LineSegment(App.Vector(-86, 9, 0), App.Vector(-79, 2, 0)), False)
sketch12.addGeometry(Part.LineSegment(App.Vector(-79, 2, 0), App.Vector(-86, 2, 0)), False)
sketch12.addGeometry(Part.LineSegment(App.Vector(-86, 2, 0), App.Vector(-86, -6, 0)), False)
sketch12.addGeometry(Part.LineSegment(App.Vector(-86, -6, 0), App.Vector(-94, 2, 0)), False)
sketch12.addGeometry(Part.ArcOfCircle(Part.Circle(App.Vector(-90, 5, 0), App.Vector(0, 0, 1), 5), math.radians(45), math.radians(225)), False)
sketch12.addConstraint(Sketcher.Constraint("Tangent", 0, 2, 1, 2))
sketch12.addConstraint(Sketcher.Constraint("Tangent", 1, 1, 2, 1))
sketch12.addConstraint(Sketcher.Constraint("Coincident", 2, 2, 3, 1))
sketch12.addConstraint(Sketcher.Constraint("Coincident", 3, 2, 4, 1))
sketch12.addConstraint(Sketcher.Constraint("Coincident", 4, 2, 0, 1))
sketch12.addConstraint(Sketcher.Constraint("Coincident", 5, 2, 6, 1))
sketch12.addConstraint(Sketcher.Constraint("Coincident", 6, 2, 7, 1))
sketch12.addConstraint(Sketcher.Constraint("Coincident", 7, 2, 8, 1))
sketch12.addConstraint(Sketcher.Constraint("Tangent", 8, 2, 9, 2))
sketch12.addConstraint(Sketcher.Constraint("Tangent", 9, 1, 5, 1))
sketch12.addConstraint(Sketcher.Constraint("Coincident", 10, 2, 11, 1))
sketch12.addConstraint(Sketcher.Constraint("Tangent", 11, 2, 12, 2))
sketch12.addConstraint(Sketcher.Constraint("Tangent", 12, 1, 13, 1))
sketch12.addConstraint(Sketcher.Constraint("Coincident", 13, 2, 14, 1))
sketch12.addConstraint(Sketcher.Constraint("Coincident", 14, 2, 10, 1))
sketch12.addConstraint(Sketcher.Constraint("Coincident", 15, 2, 16, 1))
sketch12.addConstraint(Sketcher.Constraint("Coincident", 16, 2, 17, 1))
sketch12.addConstraint(Sketcher.Constraint("Coincident", 17, 2, 18, 1))
sketch12.addConstraint(Sketcher.Constraint("Tangent", 18, 2, 19, 2))
sketch12.addConstraint(Sketcher.Constraint("Tangent", 19, 1, 15, 1))
sketch12.addConstraint(Sketcher.Constraint("Horizontal", 3))
sketch12.addConstraint(Sketcher.Constraint("Vertical", 4))
sketch12.addConstraint(Sketcher.Constraint("Vertical", 6))
sketch12.addConstraint(Sketcher.Constraint("Horizontal", 7))
sketch12.addConstraint(Sketcher.Constraint("Horizontal", 10))
sketch12.addConstraint(Sketcher.Constraint("Vertical", 14))
sketch12.addConstraint(Sketcher.Constraint("Horizontal", 16))
sketch12.addConstraint(Sketcher.Constraint("Vertical", 17))
sketch12.addConstraint(Sketcher.Constraint("Equal", 1, 9))
sketch12.addConstraint(Sketcher.Constraint("Equal", 9, 12))
sketch12.addConstraint(Sketcher.Constraint("Equal", 12, 19))
sketch12.addConstraint(Sketcher.Constraint("Parallel", 0, 2))
sketch12.addConstraint(Sketcher.Constraint("Perpendicular", 2, 5))
sketch12.addConstraint(Sketcher.Constraint("Parallel", 5, 8))
sketch12.addConstraint(Sketcher.Constraint("Parallel", 8, 11))
sketch12.addConstraint(Sketcher.Constraint("Parallel", 11, 13))
sketch12.addConstraint(Sketcher.Constraint("Perpendicular", 13, 15))
sketch12.addConstraint(Sketcher.Constraint("Parallel", 15, 18))
sketch12.addConstraint(Sketcher.Constraint("Horizontal", 1, 3, 12, 3))
sketch12.addConstraint(Sketcher.Constraint("Horizontal", 9, 3, 19, 3))
sketch12.addConstraint(Sketcher.Constraint("Horizontal", 0, 2, 2, 2))
sketch12.addConstraint(Sketcher.Constraint("Horizontal", 7, 2, 9, 1))
sketch12.addConstraint(Sketcher.Constraint("Horizontal", 3, 2, 10, 2))
sketch12.addConstraint(Sketcher.Constraint("Horizontal", 1, 1, 11, 2))
sketch12.addConstraint(Sketcher.Constraint("Horizontal", 4, 2, 13, 2))
sketch12.addConstraint(Sketcher.Constraint("Horizontal", 9, 1, 15, 2))
sketch12.addConstraint(Sketcher.Constraint("Horizontal", 5, 2, 17, 2))
sketch12.addConstraint(Sketcher.Constraint("Vertical", 1, 3, 9, 3))
sketch12.addConstraint(Sketcher.Constraint("Vertical", 12, 3, 19, 3))
sketch12.addConstraint(Sketcher.Constraint("Vertical", 1, 1, 3, 2))
sketch12.addConstraint(Sketcher.Constraint("Vertical", 4, 2, 5, 2))
sketch12.addConstraint(Sketcher.Constraint("Radius", 1, 5.0))
sketch12.addConstraint(Sketcher.Constraint("DistanceY", 3, 2, 6, 2, 93.0))
sketch12.addConstraint(Sketcher.Constraint("DistanceX", 11, 2, 1, 1, 88.0))
sketch12.addConstraint(Sketcher.Constraint("DistanceY", 0, 2, -1, 1, 91.5))
sketch12.addConstraint(Sketcher.Constraint("DistanceX", -1, 1, 1, 1, 1.5))
pad6 = doc.addObject("PartDesign::Pad", "Pad005")
body.addObject(pad6)
pad6.Profile = sketch12
pad6.Length = 3

sketch13 = doc.addObject("Sketcher::SketchObject", "Sketch012")
body.addObject(sketch13)
sketch13.AttachmentSupport = (doc.XZ_Plane, [""])
sketch13.MapMode = "FlatFace"
sketch13.AttachmentOffset = App.Placement(App.Vector(0, 0, -33), App.Rotation())
sketch13.addGeometry(Part.Circle(App.Vector(5, 5, 0), App.Vector(0, 0, 1), 1.8), False)
sketch13.addGeometry(Part.Circle(App.Vector(5, -95, 0), App.Vector(0, 0, 1), 1.8), False)
sketch13.addGeometry(Part.Circle(App.Vector(-90, -95, 0), App.Vector(0, 0, 1), 1.8), False)
sketch13.addGeometry(Part.Circle(App.Vector(-90, 5, 0), App.Vector(0, 0, 1), 1.8), False)
sketch13.addConstraint(Sketcher.Constraint("Equal", 0, 1))
sketch13.addConstraint(Sketcher.Constraint("Equal", 1, 2))
sketch13.addConstraint(Sketcher.Constraint("Equal", 2, 3))
sketch13.addConstraint(Sketcher.Constraint("Horizontal", 1, 3, 2, 3))
sketch13.addConstraint(Sketcher.Constraint("Horizontal", 0, 3, 3, 3))
sketch13.addConstraint(Sketcher.Constraint("Vertical", 0, 3, 1, 3))
sketch13.addConstraint(Sketcher.Constraint("Vertical", 2, 3, 3, 3))
sketch13.addConstraint(Sketcher.Constraint("Diameter", 0, 3.5))
sketch13.addConstraint(Sketcher.Constraint("DistanceY", 1, 3, 0, 3, 100.071))
sketch13.addConstraint(Sketcher.Constraint("DistanceX", 2, 3, 1, 3, 95.071))
sketch13.addConstraint(Sketcher.Constraint("DistanceX", -1, 1, 0, 3, 5.0355))
sketch13.addConstraint(Sketcher.Constraint("DistanceY", -1, 1, 0, 3, 5.0355))
pocket7 = doc.addObject("PartDesign::Pocket", "Pocket006")
body.addObject(pocket7)
pocket7.Profile = sketch13
pocket7.Length = 3
pocket7.Reversed = True
doc.recompute()

fillet = doc.addObject("PartDesign::Fillet", "Fillet")
body.addObject(fillet)
fillet.Base = (pocket7, edges_at(pocket7, [
    (-85, 15, -90),
    (-85, 0, -45),
    (-42.5, 0, -90),
    (0, 15, -90),
    (0, 0, -45),
    (-42.5, 0, 0),
    (-85, 15, 0),
    (0, 15, 0),
]))
fillet.Radius = 5

doc.recompute()
